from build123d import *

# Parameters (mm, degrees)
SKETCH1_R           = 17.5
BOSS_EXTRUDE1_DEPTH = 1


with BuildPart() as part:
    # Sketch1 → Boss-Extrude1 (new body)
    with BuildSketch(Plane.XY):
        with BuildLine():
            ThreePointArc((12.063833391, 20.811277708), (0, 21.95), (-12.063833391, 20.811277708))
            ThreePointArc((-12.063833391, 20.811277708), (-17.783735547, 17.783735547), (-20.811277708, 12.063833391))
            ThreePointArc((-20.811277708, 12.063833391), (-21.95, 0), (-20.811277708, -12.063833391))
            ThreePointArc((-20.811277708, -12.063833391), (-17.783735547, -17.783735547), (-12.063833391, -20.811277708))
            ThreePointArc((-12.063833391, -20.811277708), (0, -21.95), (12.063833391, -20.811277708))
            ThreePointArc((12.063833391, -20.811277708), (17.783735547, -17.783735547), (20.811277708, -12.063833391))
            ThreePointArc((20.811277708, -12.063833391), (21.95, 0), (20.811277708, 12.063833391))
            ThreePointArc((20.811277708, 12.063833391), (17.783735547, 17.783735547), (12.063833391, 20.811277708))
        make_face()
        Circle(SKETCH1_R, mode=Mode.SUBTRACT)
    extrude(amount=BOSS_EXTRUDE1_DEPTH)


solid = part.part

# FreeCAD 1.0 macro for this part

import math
import FreeCAD as App
import Part
import Sketcher
Q = App.Units.Quantity

doc = App.newDocument("Part")
params = doc.addObject("Spreadsheet::Sheet", "Params")
for row, (alias, value) in enumerate([
    ("sketch1_diameter", "35 mm"),
    ("sketch1_radius", "11 mm"),
    ("pad1_length", "1 mm"),
], start=1):
    params.set(f"A{row}", alias)
    params.set(f"B{row}", "=" + value)
    params.setAlias(f"B{row}", alias)

body = doc.addObject("PartDesign::Body", "Body")

# Sketch on XY plane
sketch1 = body.newObject("Sketcher::SketchObject", "Sketch")
sketch1.AttachmentSupport = (doc.getObject("XY_Plane"), [""])
sketch1.MapMode = "FlatFace"
sketch1.addGeometry(Part.ArcOfCircle(Part.Circle(App.Vector(0, -42.522596, 0), App.Vector(0, 0, 1), 64.472596), math.radians(79.215494), math.radians(100.784506)), False)
sketch1.addGeometry(Part.ArcOfCircle(Part.Circle(App.Vector(-10.005561, 10.005561, 0), App.Vector(0, 0, 1), 11), math.radians(100.784506), math.radians(169.215494)), False)
sketch1.addGeometry(Part.ArcOfCircle(Part.Circle(App.Vector(42.522596, 0, 0), App.Vector(0, 0, 1), 64.472596), math.radians(169.215494), math.radians(190.784506)), False)
sketch1.addGeometry(Part.ArcOfCircle(Part.Circle(App.Vector(-10.005561, -10.005561, 0), App.Vector(0, 0, 1), 11), math.radians(-169.215494), math.radians(-100.784506)), False)
sketch1.addGeometry(Part.ArcOfCircle(Part.Circle(App.Vector(0, 42.522596, 0), App.Vector(0, 0, 1), 64.472596), math.radians(-100.784506), math.radians(-79.215494)), False)
sketch1.addGeometry(Part.ArcOfCircle(Part.Circle(App.Vector(10.005561, -10.005561, 0), App.Vector(0, 0, 1), 11), math.radians(-79.215494), math.radians(-10.784506)), False)
sketch1.addGeometry(Part.ArcOfCircle(Part.Circle(App.Vector(-42.522596, 0, 0), App.Vector(0, 0, 1), 64.472596), math.radians(-10.784506), math.radians(10.784506)), False)
sketch1.addGeometry(Part.ArcOfCircle(Part.Circle(App.Vector(10.005561, 10.005561, 0), App.Vector(0, 0, 1), 11), math.radians(10.784506), math.radians(79.215494)), False)
sketch1.addGeometry(Part.Circle(App.Vector(0, 0, 0), App.Vector(0, 0, 1), 17.5), False)
sketch1.addConstraint(Sketcher.Constraint("Tangent", 0, 2, 1, 1))
sketch1.addConstraint(Sketcher.Constraint("Tangent", 1, 2, 2, 1))
sketch1.addConstraint(Sketcher.Constraint("Tangent", 2, 2, 3, 1))
sketch1.addConstraint(Sketcher.Constraint("Tangent", 3, 2, 4, 1))
sketch1.addConstraint(Sketcher.Constraint("Tangent", 4, 2, 5, 1))
sketch1.addConstraint(Sketcher.Constraint("Tangent", 5, 2, 6, 1))
sketch1.addConstraint(Sketcher.Constraint("Tangent", 6, 2, 7, 1))
sketch1.addConstraint(Sketcher.Constraint("Tangent", 7, 2, 0, 1))
sketch1.addConstraint(Sketcher.Constraint("Coincident", 8, 3, -1, 1))
sketch1.addConstraint(Sketcher.Constraint("Equal", 0, 2))
sketch1.addConstraint(Sketcher.Constraint("Equal", 1, 3))
sketch1.addConstraint(Sketcher.Constraint("Equal", 2, 4))
sketch1.addConstraint(Sketcher.Constraint("Equal", 3, 5))
sketch1.addConstraint(Sketcher.Constraint("Equal", 4, 6))
sketch1.addConstraint(Sketcher.Constraint("Equal", 5, 7))
sketch1.addConstraint(Sketcher.Constraint("Symmetric", 0, 3, 4, 3, -1, 1))
sketch1.addConstraint(Sketcher.Constraint("Symmetric", 2, 3, 6, 3, -1, 1))
sketch1.addConstraint(Sketcher.Constraint("Symmetric", 3, 3, 5, 3, -2))
sketch1.addConstraint(Sketcher.Constraint("Diameter", 8, Q("35 mm")))
sketch1.addConstraint(Sketcher.Constraint("Radius", 1, Q("11 mm")))
sketch1.addConstraint(Sketcher.Constraint("Radius", 0, Q("64.472596 mm")))
sketch1.addConstraint(Sketcher.Constraint("DistanceX", 1, 3, -1, 1, Q("10.005561 mm")))
sketch1.addConstraint(Sketcher.Constraint("DistanceY", -1, 1, 1, 3, Q("10.005561 mm")))
sketch1.setExpression("Constraints[18]", "Params.sketch1_diameter")
sketch1.setExpression("Constraints[19]", "Params.sketch1_radius")
pad1 = body.newObject("PartDesign::Pad", "Pad")
pad1.Profile = sketch1
pad1.setExpression("Length", "Params.pad1_length")

doc.recompute()
